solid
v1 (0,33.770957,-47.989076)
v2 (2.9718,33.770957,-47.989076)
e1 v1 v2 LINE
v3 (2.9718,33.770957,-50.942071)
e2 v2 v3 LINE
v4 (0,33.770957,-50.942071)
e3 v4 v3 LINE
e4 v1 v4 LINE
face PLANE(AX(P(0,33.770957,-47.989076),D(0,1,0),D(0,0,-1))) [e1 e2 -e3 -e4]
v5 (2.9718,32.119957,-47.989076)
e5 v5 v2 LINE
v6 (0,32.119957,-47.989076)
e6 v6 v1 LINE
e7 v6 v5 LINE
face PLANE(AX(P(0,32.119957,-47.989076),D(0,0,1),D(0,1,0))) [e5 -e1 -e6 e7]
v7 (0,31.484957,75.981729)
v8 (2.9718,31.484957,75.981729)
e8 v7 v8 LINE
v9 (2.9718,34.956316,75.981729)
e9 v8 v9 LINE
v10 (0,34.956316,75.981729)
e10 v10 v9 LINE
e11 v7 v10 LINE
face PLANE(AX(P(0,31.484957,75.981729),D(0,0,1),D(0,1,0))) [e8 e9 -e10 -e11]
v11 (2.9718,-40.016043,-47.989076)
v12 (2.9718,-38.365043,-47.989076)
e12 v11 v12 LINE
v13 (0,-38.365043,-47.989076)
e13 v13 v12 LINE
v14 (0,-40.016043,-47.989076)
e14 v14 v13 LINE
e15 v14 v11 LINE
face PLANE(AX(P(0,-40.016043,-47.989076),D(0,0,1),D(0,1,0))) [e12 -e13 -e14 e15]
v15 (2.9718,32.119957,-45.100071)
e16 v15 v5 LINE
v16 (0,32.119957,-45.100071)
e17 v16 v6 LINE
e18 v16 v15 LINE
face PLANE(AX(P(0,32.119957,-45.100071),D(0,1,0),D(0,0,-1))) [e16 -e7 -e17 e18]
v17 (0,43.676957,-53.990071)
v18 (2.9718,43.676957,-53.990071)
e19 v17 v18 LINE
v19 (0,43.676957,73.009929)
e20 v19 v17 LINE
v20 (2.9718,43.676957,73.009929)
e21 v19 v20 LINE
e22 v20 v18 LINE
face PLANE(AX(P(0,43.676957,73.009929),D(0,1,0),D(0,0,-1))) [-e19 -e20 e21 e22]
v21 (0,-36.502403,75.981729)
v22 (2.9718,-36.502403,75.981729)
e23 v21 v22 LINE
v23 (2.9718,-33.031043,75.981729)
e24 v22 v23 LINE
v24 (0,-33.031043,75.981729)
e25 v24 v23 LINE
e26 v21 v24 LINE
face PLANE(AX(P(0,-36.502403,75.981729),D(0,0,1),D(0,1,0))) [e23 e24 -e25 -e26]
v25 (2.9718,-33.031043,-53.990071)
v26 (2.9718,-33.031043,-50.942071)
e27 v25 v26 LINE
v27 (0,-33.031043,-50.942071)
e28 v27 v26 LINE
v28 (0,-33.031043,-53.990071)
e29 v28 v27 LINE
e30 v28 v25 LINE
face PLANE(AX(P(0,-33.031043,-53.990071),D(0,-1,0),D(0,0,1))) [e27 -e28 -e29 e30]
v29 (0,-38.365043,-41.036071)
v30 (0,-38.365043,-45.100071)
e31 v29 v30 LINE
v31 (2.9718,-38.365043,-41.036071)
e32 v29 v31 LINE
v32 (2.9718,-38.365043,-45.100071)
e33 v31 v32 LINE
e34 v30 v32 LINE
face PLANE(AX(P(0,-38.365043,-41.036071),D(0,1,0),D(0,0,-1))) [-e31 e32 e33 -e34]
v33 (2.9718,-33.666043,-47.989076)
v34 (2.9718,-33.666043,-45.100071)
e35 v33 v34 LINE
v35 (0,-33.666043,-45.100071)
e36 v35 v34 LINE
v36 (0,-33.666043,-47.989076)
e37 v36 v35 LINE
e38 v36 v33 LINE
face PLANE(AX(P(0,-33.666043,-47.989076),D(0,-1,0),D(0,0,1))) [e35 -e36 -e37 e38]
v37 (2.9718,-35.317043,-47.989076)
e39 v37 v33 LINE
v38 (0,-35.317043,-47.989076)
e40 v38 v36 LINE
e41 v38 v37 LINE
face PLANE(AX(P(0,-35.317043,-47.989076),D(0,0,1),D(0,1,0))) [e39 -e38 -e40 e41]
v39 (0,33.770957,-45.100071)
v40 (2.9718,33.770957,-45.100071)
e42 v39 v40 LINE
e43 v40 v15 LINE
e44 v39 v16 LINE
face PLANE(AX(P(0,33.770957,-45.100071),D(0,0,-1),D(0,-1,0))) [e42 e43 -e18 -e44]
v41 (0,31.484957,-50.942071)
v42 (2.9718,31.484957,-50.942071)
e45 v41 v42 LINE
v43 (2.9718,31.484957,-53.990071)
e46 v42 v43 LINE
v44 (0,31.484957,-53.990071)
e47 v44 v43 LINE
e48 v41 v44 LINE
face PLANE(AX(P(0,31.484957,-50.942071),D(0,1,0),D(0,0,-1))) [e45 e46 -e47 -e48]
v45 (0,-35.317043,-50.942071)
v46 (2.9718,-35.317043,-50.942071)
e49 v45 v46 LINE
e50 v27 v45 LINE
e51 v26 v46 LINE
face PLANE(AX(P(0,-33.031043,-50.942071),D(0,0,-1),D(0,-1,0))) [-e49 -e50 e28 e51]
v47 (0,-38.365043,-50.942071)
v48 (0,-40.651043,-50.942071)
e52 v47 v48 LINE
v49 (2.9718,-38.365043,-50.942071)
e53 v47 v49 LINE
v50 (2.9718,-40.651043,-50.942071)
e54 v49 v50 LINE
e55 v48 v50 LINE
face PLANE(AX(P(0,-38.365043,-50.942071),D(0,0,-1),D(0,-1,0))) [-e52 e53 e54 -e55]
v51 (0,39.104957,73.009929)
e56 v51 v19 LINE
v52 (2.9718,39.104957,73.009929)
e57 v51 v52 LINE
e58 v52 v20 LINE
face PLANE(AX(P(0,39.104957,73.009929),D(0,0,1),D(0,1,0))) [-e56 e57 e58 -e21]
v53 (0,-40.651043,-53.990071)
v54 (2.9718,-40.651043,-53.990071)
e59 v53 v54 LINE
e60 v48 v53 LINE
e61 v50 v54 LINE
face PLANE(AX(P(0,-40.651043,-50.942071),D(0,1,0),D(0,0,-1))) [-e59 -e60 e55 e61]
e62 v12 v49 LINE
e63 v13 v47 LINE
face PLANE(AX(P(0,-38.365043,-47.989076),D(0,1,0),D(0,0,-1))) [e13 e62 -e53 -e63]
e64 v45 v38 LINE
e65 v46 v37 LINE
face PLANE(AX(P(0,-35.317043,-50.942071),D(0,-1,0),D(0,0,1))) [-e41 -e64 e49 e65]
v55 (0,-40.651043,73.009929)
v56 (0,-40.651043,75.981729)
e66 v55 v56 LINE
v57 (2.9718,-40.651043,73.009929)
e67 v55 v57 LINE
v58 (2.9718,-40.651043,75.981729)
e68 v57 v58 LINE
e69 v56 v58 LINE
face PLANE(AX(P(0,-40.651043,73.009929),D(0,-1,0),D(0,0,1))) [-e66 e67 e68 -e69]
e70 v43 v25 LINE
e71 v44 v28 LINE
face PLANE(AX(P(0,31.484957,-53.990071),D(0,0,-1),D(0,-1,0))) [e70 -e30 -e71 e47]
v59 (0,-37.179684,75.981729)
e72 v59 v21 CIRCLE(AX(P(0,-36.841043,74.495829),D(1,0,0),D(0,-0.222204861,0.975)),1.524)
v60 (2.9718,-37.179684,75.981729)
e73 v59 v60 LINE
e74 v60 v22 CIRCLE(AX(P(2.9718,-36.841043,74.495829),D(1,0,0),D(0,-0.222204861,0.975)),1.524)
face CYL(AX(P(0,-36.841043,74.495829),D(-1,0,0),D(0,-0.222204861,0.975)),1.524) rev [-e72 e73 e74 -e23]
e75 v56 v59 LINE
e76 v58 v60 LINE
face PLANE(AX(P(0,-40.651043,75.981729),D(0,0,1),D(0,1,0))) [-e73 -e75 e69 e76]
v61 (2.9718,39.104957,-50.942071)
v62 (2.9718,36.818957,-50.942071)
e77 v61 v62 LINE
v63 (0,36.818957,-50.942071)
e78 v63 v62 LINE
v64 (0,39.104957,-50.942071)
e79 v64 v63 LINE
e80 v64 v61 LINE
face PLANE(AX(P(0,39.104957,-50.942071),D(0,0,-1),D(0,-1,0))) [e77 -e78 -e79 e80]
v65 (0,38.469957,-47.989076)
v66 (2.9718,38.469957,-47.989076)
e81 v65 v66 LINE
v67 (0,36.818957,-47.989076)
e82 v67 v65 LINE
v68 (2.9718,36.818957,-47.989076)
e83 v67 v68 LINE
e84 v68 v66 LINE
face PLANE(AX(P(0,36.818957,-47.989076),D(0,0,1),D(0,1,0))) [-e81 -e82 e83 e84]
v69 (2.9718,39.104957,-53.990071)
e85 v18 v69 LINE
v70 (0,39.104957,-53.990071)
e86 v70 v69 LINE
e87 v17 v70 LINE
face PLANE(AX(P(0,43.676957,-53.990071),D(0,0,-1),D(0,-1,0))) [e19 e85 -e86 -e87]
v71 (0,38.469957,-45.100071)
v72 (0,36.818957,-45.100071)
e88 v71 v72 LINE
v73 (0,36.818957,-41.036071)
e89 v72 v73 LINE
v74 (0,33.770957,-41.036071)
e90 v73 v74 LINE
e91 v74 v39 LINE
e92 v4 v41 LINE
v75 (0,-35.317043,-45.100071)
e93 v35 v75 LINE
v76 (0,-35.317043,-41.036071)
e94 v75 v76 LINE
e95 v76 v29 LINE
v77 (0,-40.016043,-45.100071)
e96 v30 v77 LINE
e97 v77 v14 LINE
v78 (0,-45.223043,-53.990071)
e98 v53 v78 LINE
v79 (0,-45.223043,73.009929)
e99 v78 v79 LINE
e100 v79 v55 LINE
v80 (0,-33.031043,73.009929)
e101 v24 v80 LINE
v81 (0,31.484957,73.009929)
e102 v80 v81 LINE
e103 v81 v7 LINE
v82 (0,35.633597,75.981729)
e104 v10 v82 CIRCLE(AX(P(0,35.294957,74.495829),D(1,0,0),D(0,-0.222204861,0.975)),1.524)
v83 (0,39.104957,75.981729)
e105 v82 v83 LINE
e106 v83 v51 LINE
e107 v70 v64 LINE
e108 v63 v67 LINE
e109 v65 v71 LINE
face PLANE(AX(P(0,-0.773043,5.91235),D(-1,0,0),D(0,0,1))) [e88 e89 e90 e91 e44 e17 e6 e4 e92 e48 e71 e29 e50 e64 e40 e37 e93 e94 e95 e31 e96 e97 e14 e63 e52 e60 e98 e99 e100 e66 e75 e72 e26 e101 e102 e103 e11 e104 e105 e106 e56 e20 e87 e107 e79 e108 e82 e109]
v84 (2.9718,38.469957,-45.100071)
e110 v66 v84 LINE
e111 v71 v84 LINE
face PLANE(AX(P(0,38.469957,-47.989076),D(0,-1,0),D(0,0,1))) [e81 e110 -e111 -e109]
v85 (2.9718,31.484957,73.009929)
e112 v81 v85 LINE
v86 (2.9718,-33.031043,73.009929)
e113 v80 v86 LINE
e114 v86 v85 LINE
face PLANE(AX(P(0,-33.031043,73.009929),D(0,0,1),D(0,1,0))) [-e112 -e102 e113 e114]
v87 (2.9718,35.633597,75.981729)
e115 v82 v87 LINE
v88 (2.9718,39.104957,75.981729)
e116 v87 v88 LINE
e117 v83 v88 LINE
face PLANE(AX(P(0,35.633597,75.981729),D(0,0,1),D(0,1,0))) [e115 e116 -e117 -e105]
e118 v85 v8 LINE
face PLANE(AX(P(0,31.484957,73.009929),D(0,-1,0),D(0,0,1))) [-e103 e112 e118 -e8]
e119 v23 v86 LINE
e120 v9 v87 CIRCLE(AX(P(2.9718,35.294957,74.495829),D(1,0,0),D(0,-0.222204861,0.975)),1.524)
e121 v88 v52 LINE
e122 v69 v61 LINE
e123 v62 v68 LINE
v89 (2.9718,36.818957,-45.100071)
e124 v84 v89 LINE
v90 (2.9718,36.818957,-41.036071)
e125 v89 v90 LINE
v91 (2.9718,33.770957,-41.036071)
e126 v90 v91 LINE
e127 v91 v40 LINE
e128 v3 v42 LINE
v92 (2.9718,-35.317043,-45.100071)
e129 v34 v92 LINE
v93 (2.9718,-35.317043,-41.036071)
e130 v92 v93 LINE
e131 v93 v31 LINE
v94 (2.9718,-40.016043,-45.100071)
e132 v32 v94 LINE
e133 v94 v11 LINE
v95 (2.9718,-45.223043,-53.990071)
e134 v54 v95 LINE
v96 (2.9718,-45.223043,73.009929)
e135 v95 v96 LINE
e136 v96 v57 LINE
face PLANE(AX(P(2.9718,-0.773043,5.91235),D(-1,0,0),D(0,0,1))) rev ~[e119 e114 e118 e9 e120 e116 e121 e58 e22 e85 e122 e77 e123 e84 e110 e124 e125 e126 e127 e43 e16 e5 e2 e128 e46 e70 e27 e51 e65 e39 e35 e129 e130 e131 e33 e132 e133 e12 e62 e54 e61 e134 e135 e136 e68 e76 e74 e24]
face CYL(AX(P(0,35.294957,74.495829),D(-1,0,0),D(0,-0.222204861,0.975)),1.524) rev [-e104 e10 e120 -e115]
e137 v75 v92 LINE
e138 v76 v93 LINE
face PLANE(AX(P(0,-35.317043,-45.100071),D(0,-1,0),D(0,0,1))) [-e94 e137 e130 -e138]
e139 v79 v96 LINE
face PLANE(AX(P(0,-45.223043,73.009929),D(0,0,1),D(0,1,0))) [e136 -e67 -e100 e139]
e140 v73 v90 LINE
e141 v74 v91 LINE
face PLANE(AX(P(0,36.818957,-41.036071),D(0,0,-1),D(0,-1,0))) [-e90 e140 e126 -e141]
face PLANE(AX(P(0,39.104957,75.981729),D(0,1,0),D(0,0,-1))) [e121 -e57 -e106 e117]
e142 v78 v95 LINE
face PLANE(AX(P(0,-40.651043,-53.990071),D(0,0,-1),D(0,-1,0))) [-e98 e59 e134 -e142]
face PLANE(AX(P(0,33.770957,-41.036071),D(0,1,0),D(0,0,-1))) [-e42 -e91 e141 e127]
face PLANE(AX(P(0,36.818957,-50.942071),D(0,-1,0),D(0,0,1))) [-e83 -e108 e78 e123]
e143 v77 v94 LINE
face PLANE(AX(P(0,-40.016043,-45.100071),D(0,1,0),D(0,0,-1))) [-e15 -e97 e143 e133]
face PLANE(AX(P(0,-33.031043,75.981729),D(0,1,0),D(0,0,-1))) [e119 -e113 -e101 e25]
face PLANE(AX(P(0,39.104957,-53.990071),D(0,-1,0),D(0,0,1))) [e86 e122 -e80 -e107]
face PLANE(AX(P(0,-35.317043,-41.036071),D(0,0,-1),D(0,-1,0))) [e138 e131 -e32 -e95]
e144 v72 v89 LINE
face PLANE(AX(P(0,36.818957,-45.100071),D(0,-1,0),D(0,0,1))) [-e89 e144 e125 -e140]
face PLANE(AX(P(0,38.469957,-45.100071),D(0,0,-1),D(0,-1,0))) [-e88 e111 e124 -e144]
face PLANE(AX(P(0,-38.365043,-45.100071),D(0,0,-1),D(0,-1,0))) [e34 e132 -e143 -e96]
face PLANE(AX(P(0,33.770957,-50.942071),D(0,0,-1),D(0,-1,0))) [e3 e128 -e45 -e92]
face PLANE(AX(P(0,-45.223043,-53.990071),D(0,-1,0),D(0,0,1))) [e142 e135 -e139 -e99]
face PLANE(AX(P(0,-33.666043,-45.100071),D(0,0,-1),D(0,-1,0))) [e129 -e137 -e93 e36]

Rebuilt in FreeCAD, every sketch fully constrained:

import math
import FreeCAD as App
import Part
import Sketcher

V = App.Vector
Q = App.Units.Quantity

doc = App.newDocument("Part")
params = doc.addObject("Spreadsheet::Sheet", "Params")
for row, (alias, value) in enumerate([
    ("sketch1_height", "5 in"),
    ("sketch1_radius", "0.06 in"),
    ("sketch1_width", "0.18 in"),
    ("sketch1_width2", "2.54 in"),
    ("sketch1_width3", "0.09 in"),
    ("pad1_length", "0.117 in"),
], start=1):
    params.set(f"A{row}", alias)
    params.set(f"B{row}", "=" + value)
    params.setAlias(f"B{row}", alias)

body = doc.addObject("PartDesign::Body", "Body")

# Sketch on YZ plane
sketch1 = body.newObject("Sketcher::SketchObject", "Sketch")
sketch1.AttachmentSupport = (doc.getObject("YZ_Plane"), [""])
sketch1.MapMode = "FlatFace"
sketch1.addGeometry([
    Part.LineSegment(V(43.676957, -53.990071, 0), V(43.676957, 73.009929, 0)),  # 0
    Part.LineSegment(V(43.676957, 73.009929, 0), V(39.104957, 73.009929, 0)),  # 1
    Part.LineSegment(V(39.104957, 73.009929, 0), V(39.104957, 75.981729, 0)),  # 2
    Part.LineSegment(V(39.104957, 75.981729, 0), V(35.633597, 75.981729, 0)),  # 3
    Part.ArcOfCircle(Part.Circle(V(35.294957, 74.495829, 0), V(0, 0, 1), 1.524), math.radians(102.838568), math.radians(437.161432)),  # 4
    Part.LineSegment(V(34.956316, 75.981729, 0), V(31.484957, 75.981729, 0)),  # 5
    Part.LineSegment(V(31.484957, 75.981729, 0), V(31.484957, 73.009929, 0)),  # 6
    Part.LineSegment(V(31.484957, 73.009929, 0), V(-33.031043, 73.009929, 0)),  # 7
    Part.LineSegment(V(-33.031043, 73.009929, 0), V(-33.031043, 75.981729, 0)),  # 8
    Part.LineSegment(V(-33.031043, 75.981729, 0), V(-36.502403, 75.981729, 0)),  # 9
    Part.ArcOfCircle(Part.Circle(V(-36.841043, 74.495829, 0), V(0, 0, 1), 1.524), math.radians(102.838568), math.radians(437.161432)),  # 10
    Part.LineSegment(V(-37.179684, 75.981729, 0), V(-40.651043, 75.981729, 0)),  # 11
    Part.LineSegment(V(-40.651043, 75.981729, 0), V(-40.651043, 73.009929, 0)),  # 12
    Part.LineSegment(V(-40.651043, 73.009929, 0), V(-45.223043, 73.009929, 0)),  # 13
    Part.LineSegment(V(-45.223043, 73.009929, 0), V(-45.223043, -53.990071, 0)),  # 14
    Part.LineSegment(V(-45.223043, -53.990071, 0), V(-40.651043, -53.990071, 0)),  # 15
    Part.LineSegment(V(-40.651043, -53.990071, 0), V(-40.651043, -50.942071, 0)),  # 16
    Part.LineSegment(V(-40.651043, -50.942071, 0), V(-38.365043, -50.942071, 0)),  # 17
    Part.LineSegment(V(-38.365043, -50.942071, 0), V(-38.365043, -47.989076, 0)),  # 18
    Part.LineSegment(V(-38.365043, -47.989076, 0), V(-40.016043, -47.989076, 0)),  # 19
    Part.LineSegment(V(-40.016043, -47.989076, 0), V(-40.016043, -45.100071, 0)),  # 20
    Part.LineSegment(V(-40.016043, -45.100071, 0), V(-38.365043, -45.100071, 0)),  # 21
    Part.LineSegment(V(-38.365043, -45.100071, 0), V(-38.365043, -41.036071, 0)),  # 22
    Part.LineSegment(V(-38.365043, -41.036071, 0), V(-35.317043, -41.036071, 0)),  # 23
    Part.LineSegment(V(-35.317043, -41.036071, 0), V(-35.317043, -45.100071, 0)),  # 24
    Part.LineSegment(V(-35.317043, -45.100071, 0), V(-33.666043, -45.100071, 0)),  # 25
    Part.LineSegment(V(-33.666043, -45.100071, 0), V(-33.666043, -47.989076, 0)),  # 26
    Part.LineSegment(V(-33.666043, -47.989076, 0), V(-35.317043, -47.989076, 0)),  # 27
    Part.LineSegment(V(-35.317043, -47.989076, 0), V(-35.317043, -50.942071, 0)),  # 28
    Part.LineSegment(V(-35.317043, -50.942071, 0), V(-33.031043, -50.942071, 0)),  # 29
    Part.LineSegment(V(-33.031043, -50.942071, 0), V(-33.031043, -53.990071, 0)),  # 30
    Part.LineSegment(V(-33.031043, -53.990071, 0), V(31.484957, -53.990071, 0)),  # 31
    Part.LineSegment(V(31.484957, -53.990071, 0), V(31.484957, -50.942071, 0)),  # 32
    Part.LineSegment(V(31.484957, -50.942071, 0), V(33.770957, -50.942071, 0)),  # 33
    Part.LineSegment(V(33.770957, -50.942071, 0), V(33.770957, -47.989076, 0)),  # 34
    Part.LineSegment(V(33.770957, -47.989076, 0), V(32.119957, -47.989076, 0)),  # 35
    Part.LineSegment(V(32.119957, -47.989076, 0), V(32.119957, -45.100071, 0)),  # 36
    Part.LineSegment(V(32.119957, -45.100071, 0), V(33.770957, -45.100071, 0)),  # 37
    Part.LineSegment(V(33.770957, -45.100071, 0), V(33.770957, -41.036071, 0)),  # 38
    Part.LineSegment(V(33.770957, -41.036071, 0), V(36.818957, -41.036071, 0)),  # 39
    Part.LineSegment(V(36.818957, -41.036071, 0), V(36.818957, -45.100071, 0)),  # 40
    Part.LineSegment(V(36.818957, -45.100071, 0), V(38.469957, -45.100071, 0)),  # 41
    Part.LineSegment(V(38.469957, -45.100071, 0), V(38.469957, -47.989076, 0)),  # 42
    Part.LineSegment(V(38.469957, -47.989076, 0), V(36.818957, -47.989076, 0)),  # 43
    Part.LineSegment(V(36.818957, -47.989076, 0), V(36.818957, -50.942071, 0)),  # 44
    Part.LineSegment(V(36.818957, -50.942071, 0), V(39.104957, -50.942071, 0)),  # 45
    Part.LineSegment(V(39.104957, -50.942071, 0), V(39.104957, -53.990071, 0)),  # 46
    Part.LineSegment(V(39.104957, -53.990071, 0), V(43.676957, -53.990071, 0)),  # 47
], False)
sketch1.addConstraint([
    Sketcher.Constraint("Coincident", 0, 2, 1, 1),
    Sketcher.Constraint("Coincident", 1, 2, 2, 1),
    Sketcher.Constraint("Coincident", 2, 2, 3, 1),
    Sketcher.Constraint("Coincident", 3, 2, 4, 2),
    Sketcher.Constraint("Coincident", 4, 1, 5, 1),
    Sketcher.Constraint("Coincident", 5, 2, 6, 1),
    Sketcher.Constraint("Coincident", 6, 2, 7, 1),
    Sketcher.Constraint("Coincident", 7, 2, 8, 1),
    Sketcher.Constraint("Coincident", 8, 2, 9, 1),
    Sketcher.Constraint("Coincident", 9, 2, 10, 2),
    Sketcher.Constraint("Coincident", 10, 1, 11, 1),
    Sketcher.Constraint("Coincident", 11, 2, 12, 1),
    Sketcher.Constraint("Coincident", 12, 2, 13, 1),
    Sketcher.Constraint("Coincident", 13, 2, 14, 1),
    Sketcher.Constraint("Coincident", 14, 2, 15, 1),
    Sketcher.Constraint("Coincident", 15, 2, 16, 1),
    Sketcher.Constraint("Coincident", 16, 2, 17, 1),
    Sketcher.Constraint("Coincident", 17, 2, 18, 1),
    Sketcher.Constraint("Coincident", 18, 2, 19, 1),
    Sketcher.Constraint("Coincident", 19, 2, 20, 1),
    Sketcher.Constraint("Coincident", 20, 2, 21, 1),
    Sketcher.Constraint("Coincident", 21, 2, 22, 1),
    Sketcher.Constraint("Coincident", 22, 2, 23, 1),
    Sketcher.Constraint("Coincident", 23, 2, 24, 1),
    Sketcher.Constraint("Coincident", 24, 2, 25, 1),
    Sketcher.Constraint("Coincident", 25, 2, 26, 1),
    Sketcher.Constraint("Coincident", 26, 2, 27, 1),
    Sketcher.Constraint("Coincident", 27, 2, 28, 1),
    Sketcher.Constraint("Coincident", 28, 2, 29, 1),
    Sketcher.Constraint("Coincident", 29, 2, 30, 1),
    Sketcher.Constraint("Coincident", 30, 2, 31, 1),
    Sketcher.Constraint("Coincident", 31, 2, 32, 1),
    Sketcher.Constraint("Coincident", 32, 2, 33, 1),
    Sketcher.Constraint("Coincident", 33, 2, 34, 1),
    Sketcher.Constraint("Coincident", 34, 2, 35, 1),
    Sketcher.Constraint("Coincident", 35, 2, 36, 1),
    Sketcher.Constraint("Coincident", 36, 2, 37, 1),
    Sketcher.Constraint("Coincident", 37, 2, 38, 1),
    Sketcher.Constraint("Coincident", 38, 2, 39, 1),
    Sketcher.Constraint("Coincident", 39, 2, 40, 1),
    Sketcher.Constraint("Coincident", 40, 2, 41, 1),
    Sketcher.Constraint("Coincident", 41, 2, 42, 1),
    Sketcher.Constraint("Coincident", 42, 2, 43, 1),
    Sketcher.Constraint("Coincident", 43, 2, 44, 1),
    Sketcher.Constraint("Coincident", 44, 2, 45, 1),
    Sketcher.Constraint("Coincident", 45, 2, 46, 1),
    Sketcher.Constraint("Coincident", 46, 2, 47, 1),
    Sketcher.Constraint("Coincident", 47, 2, 0, 1),
    Sketcher.Constraint("Vertical", 0),
    Sketcher.Constraint("Horizontal", 1),
    Sketcher.Constraint("Vertical", 2),
    Sketcher.Constraint("Horizontal", 3),
    Sketcher.Constraint("Horizontal", 5),
    Sketcher.Constraint("Vertical", 6),
    Sketcher.Constraint("Horizontal", 7),
    Sketcher.Constraint("Vertical", 8),
    Sketcher.Constraint("Horizontal", 9),
    Sketcher.Constraint("Horizontal", 11),
    Sketcher.Constraint("Vertical", 12),
    Sketcher.Constraint("Horizontal", 13),
    Sketcher.Constraint("Vertical", 14),
    Sketcher.Constraint("Horizontal", 15),
    Sketcher.Constraint("Vertical", 16),
    Sketcher.Constraint("Horizontal", 17),
    Sketcher.Constraint("Vertical", 18),
    Sketcher.Constraint("Horizontal", 19),
    Sketcher.Constraint("Vertical", 20),
    Sketcher.Constraint("Horizontal", 21),
    Sketcher.Constraint("Vertical", 22),
    Sketcher.Constraint("Horizontal", 23),
    Sketcher.Constraint("Vertical", 24),
    Sketcher.Constraint("Horizontal", 25),
    Sketcher.Constraint("Vertical", 26),
    Sketcher.Constraint("Horizontal", 27),
    Sketcher.Constraint("Vertical", 28),
    Sketcher.Constraint("Horizontal", 29),
    Sketcher.Constraint("Vertical", 30),
    Sketcher.Constraint("Horizontal", 31),
    Sketcher.Constraint("Vertical", 32),
    Sketcher.Constraint("Horizontal", 33),
    Sketcher.Constraint("Vertical", 34),
    Sketcher.Constraint("Horizontal", 35),
    Sketcher.Constraint("Vertical", 36),
    Sketcher.Constraint("Horizontal", 37),
    Sketcher.Constraint("Vertical", 38),
    Sketcher.Constraint("Horizontal", 39),
    Sketcher.Constraint("Vertical", 40),
    Sketcher.Constraint("Horizontal", 41),
    Sketcher.Constraint("Vertical", 42),
    Sketcher.Constraint("Horizontal", 43),
    Sketcher.Constraint("Vertical", 44),
    Sketcher.Constraint("Horizontal", 45),
    Sketcher.Constraint("Vertical", 46),
    Sketcher.Constraint("Horizontal", 47),
    Sketcher.Constraint("Equal", 4, 10),
    Sketcher.Constraint("Horizontal", 4, 3, 10, 3),
    Sketcher.Constraint("Horizontal", 3, 2, 4, 1),
    Sketcher.Constraint("Horizontal", 1, 2, 6, 2),
    Sketcher.Constraint("Horizontal", 5, 2, 8, 2),
    Sketcher.Constraint("Horizontal", 9, 2, 10, 1),
    Sketcher.Constraint("Horizontal", 7, 2, 12, 2),
    Sketcher.Constraint("Horizontal", 21, 2, 24, 2),
    Sketcher.Constraint("Horizontal", 19, 2, 26, 2),
    Sketcher.Constraint("Horizontal", 17, 2, 28, 2),
    Sketcher.Constraint("Horizontal", 15, 2, 30, 2),
    Sketcher.Constraint("Horizontal", 29, 2, 32, 2),
    Sketcher.Constraint("Horizontal", 27, 2, 34, 2),
    Sketcher.Constraint("Horizontal", 25, 2, 36, 2),
    Sketcher.Constraint("Horizontal", 23, 2, 38, 2),
    Sketcher.Constraint("Horizontal", 37, 2, 40, 2),
    Sketcher.Constraint("Horizontal", 35, 2, 42, 2),
    Sketcher.Constraint("Horizontal", 33, 2, 44, 2),
    Sketcher.Constraint("Horizontal", 31, 2, 46, 2),
    Sketcher.Constraint("Vertical", 12, 2, 15, 2),
    Sketcher.Constraint("Vertical", 18, 2, 21, 2),
    Sketcher.Constraint("Vertical", 24, 2, 27, 2),
    Sketcher.Constraint("Vertical", 8, 2, 29, 2),
    Sketcher.Constraint("Vertical", 6, 2, 31, 2),
    Sketcher.Constraint("Vertical", 34, 2, 37, 2),
    Sketcher.Constraint("Vertical", 40, 2, 43, 2),
    Sketcher.Constraint("Vertical", 2, 2, 45, 2),
    Sketcher.Constraint("Equal", 3, 5),
    Sketcher.Constraint("Equal", 5, 9),
    Sketcher.Constraint("Equal", 9, 11),
    Sketcher.Constraint("Equal", 1, 13),
    Sketcher.Constraint("Equal", 21, 25),
    Sketcher.Constraint("Equal", 17, 29),
    Sketcher.Constraint("Equal", 29, 33),
    Sketcher.Constraint("Equal", 27, 35),
    Sketcher.Constraint("Equal", 23, 39),
    Sketcher.Constraint("Equal", 37, 41),
    Sketcher.Constraint("Equal", 39, 16),
    Sketcher.Constraint("DistanceY", 0, 1, 0, 2, Q("5 in")),
    Sketcher.Constraint("Radius", 4, Q("0.06 in")),
    Sketcher.Constraint("DistanceX", 1, 2, 1, 1, Q("0.18 in")),
    Sketcher.Constraint("DistanceX", 7, 2, 7, 1, Q("2.54 in")),
    Sketcher.Constraint("DistanceX", 17, 1, 17, 2, Q("0.09 in")),
    Sketcher.Constraint("DistanceX", 23, 1, 23, 2, Q("0.12 in")),
    Sketcher.Constraint("DistanceY", 22, 1, 22, 2, Q("0.16 in")),
    Sketcher.Constraint("DistanceX", 19, 2, 19, 1, Q("0.065 in")),
    Sketcher.Constraint("DistanceY", 2, 1, 2, 2, Q("0.117 in")),
    Sketcher.Constraint("DistanceY", 16, 2, 20, 2, Q("0.23 in")),
    Sketcher.Constraint("DistanceY", 0, 2, 4, 3, Q("0.0585 in")),
    Sketcher.Constraint("DistanceY", 18, 1, 18, 2, Q("2.952995 mm")),
    Sketcher.Constraint("DistanceY", -1, 1, 4, 3, Q("74.495829 mm")),
    Sketcher.Constraint("DistanceX", -1, 1, 4, 3, Q("35.294957 mm")),
])
sketch1.setExpression("Constraints[132]", "Params.sketch1_height")
sketch1.setExpression("Constraints[133]", "Params.sketch1_radius")
sketch1.setExpression("Constraints[134]", "Params.sketch1_width")
sketch1.setExpression("Constraints[135]", "Params.sketch1_width2")
sketch1.setExpression("Constraints[136]", "Params.sketch1_width3")
pad1 = body.newObject("PartDesign::Pad", "Pad")
pad1.Profile = sketch1
pad1.setExpression("Length", "Params.pad1_length")

doc.recompute()
